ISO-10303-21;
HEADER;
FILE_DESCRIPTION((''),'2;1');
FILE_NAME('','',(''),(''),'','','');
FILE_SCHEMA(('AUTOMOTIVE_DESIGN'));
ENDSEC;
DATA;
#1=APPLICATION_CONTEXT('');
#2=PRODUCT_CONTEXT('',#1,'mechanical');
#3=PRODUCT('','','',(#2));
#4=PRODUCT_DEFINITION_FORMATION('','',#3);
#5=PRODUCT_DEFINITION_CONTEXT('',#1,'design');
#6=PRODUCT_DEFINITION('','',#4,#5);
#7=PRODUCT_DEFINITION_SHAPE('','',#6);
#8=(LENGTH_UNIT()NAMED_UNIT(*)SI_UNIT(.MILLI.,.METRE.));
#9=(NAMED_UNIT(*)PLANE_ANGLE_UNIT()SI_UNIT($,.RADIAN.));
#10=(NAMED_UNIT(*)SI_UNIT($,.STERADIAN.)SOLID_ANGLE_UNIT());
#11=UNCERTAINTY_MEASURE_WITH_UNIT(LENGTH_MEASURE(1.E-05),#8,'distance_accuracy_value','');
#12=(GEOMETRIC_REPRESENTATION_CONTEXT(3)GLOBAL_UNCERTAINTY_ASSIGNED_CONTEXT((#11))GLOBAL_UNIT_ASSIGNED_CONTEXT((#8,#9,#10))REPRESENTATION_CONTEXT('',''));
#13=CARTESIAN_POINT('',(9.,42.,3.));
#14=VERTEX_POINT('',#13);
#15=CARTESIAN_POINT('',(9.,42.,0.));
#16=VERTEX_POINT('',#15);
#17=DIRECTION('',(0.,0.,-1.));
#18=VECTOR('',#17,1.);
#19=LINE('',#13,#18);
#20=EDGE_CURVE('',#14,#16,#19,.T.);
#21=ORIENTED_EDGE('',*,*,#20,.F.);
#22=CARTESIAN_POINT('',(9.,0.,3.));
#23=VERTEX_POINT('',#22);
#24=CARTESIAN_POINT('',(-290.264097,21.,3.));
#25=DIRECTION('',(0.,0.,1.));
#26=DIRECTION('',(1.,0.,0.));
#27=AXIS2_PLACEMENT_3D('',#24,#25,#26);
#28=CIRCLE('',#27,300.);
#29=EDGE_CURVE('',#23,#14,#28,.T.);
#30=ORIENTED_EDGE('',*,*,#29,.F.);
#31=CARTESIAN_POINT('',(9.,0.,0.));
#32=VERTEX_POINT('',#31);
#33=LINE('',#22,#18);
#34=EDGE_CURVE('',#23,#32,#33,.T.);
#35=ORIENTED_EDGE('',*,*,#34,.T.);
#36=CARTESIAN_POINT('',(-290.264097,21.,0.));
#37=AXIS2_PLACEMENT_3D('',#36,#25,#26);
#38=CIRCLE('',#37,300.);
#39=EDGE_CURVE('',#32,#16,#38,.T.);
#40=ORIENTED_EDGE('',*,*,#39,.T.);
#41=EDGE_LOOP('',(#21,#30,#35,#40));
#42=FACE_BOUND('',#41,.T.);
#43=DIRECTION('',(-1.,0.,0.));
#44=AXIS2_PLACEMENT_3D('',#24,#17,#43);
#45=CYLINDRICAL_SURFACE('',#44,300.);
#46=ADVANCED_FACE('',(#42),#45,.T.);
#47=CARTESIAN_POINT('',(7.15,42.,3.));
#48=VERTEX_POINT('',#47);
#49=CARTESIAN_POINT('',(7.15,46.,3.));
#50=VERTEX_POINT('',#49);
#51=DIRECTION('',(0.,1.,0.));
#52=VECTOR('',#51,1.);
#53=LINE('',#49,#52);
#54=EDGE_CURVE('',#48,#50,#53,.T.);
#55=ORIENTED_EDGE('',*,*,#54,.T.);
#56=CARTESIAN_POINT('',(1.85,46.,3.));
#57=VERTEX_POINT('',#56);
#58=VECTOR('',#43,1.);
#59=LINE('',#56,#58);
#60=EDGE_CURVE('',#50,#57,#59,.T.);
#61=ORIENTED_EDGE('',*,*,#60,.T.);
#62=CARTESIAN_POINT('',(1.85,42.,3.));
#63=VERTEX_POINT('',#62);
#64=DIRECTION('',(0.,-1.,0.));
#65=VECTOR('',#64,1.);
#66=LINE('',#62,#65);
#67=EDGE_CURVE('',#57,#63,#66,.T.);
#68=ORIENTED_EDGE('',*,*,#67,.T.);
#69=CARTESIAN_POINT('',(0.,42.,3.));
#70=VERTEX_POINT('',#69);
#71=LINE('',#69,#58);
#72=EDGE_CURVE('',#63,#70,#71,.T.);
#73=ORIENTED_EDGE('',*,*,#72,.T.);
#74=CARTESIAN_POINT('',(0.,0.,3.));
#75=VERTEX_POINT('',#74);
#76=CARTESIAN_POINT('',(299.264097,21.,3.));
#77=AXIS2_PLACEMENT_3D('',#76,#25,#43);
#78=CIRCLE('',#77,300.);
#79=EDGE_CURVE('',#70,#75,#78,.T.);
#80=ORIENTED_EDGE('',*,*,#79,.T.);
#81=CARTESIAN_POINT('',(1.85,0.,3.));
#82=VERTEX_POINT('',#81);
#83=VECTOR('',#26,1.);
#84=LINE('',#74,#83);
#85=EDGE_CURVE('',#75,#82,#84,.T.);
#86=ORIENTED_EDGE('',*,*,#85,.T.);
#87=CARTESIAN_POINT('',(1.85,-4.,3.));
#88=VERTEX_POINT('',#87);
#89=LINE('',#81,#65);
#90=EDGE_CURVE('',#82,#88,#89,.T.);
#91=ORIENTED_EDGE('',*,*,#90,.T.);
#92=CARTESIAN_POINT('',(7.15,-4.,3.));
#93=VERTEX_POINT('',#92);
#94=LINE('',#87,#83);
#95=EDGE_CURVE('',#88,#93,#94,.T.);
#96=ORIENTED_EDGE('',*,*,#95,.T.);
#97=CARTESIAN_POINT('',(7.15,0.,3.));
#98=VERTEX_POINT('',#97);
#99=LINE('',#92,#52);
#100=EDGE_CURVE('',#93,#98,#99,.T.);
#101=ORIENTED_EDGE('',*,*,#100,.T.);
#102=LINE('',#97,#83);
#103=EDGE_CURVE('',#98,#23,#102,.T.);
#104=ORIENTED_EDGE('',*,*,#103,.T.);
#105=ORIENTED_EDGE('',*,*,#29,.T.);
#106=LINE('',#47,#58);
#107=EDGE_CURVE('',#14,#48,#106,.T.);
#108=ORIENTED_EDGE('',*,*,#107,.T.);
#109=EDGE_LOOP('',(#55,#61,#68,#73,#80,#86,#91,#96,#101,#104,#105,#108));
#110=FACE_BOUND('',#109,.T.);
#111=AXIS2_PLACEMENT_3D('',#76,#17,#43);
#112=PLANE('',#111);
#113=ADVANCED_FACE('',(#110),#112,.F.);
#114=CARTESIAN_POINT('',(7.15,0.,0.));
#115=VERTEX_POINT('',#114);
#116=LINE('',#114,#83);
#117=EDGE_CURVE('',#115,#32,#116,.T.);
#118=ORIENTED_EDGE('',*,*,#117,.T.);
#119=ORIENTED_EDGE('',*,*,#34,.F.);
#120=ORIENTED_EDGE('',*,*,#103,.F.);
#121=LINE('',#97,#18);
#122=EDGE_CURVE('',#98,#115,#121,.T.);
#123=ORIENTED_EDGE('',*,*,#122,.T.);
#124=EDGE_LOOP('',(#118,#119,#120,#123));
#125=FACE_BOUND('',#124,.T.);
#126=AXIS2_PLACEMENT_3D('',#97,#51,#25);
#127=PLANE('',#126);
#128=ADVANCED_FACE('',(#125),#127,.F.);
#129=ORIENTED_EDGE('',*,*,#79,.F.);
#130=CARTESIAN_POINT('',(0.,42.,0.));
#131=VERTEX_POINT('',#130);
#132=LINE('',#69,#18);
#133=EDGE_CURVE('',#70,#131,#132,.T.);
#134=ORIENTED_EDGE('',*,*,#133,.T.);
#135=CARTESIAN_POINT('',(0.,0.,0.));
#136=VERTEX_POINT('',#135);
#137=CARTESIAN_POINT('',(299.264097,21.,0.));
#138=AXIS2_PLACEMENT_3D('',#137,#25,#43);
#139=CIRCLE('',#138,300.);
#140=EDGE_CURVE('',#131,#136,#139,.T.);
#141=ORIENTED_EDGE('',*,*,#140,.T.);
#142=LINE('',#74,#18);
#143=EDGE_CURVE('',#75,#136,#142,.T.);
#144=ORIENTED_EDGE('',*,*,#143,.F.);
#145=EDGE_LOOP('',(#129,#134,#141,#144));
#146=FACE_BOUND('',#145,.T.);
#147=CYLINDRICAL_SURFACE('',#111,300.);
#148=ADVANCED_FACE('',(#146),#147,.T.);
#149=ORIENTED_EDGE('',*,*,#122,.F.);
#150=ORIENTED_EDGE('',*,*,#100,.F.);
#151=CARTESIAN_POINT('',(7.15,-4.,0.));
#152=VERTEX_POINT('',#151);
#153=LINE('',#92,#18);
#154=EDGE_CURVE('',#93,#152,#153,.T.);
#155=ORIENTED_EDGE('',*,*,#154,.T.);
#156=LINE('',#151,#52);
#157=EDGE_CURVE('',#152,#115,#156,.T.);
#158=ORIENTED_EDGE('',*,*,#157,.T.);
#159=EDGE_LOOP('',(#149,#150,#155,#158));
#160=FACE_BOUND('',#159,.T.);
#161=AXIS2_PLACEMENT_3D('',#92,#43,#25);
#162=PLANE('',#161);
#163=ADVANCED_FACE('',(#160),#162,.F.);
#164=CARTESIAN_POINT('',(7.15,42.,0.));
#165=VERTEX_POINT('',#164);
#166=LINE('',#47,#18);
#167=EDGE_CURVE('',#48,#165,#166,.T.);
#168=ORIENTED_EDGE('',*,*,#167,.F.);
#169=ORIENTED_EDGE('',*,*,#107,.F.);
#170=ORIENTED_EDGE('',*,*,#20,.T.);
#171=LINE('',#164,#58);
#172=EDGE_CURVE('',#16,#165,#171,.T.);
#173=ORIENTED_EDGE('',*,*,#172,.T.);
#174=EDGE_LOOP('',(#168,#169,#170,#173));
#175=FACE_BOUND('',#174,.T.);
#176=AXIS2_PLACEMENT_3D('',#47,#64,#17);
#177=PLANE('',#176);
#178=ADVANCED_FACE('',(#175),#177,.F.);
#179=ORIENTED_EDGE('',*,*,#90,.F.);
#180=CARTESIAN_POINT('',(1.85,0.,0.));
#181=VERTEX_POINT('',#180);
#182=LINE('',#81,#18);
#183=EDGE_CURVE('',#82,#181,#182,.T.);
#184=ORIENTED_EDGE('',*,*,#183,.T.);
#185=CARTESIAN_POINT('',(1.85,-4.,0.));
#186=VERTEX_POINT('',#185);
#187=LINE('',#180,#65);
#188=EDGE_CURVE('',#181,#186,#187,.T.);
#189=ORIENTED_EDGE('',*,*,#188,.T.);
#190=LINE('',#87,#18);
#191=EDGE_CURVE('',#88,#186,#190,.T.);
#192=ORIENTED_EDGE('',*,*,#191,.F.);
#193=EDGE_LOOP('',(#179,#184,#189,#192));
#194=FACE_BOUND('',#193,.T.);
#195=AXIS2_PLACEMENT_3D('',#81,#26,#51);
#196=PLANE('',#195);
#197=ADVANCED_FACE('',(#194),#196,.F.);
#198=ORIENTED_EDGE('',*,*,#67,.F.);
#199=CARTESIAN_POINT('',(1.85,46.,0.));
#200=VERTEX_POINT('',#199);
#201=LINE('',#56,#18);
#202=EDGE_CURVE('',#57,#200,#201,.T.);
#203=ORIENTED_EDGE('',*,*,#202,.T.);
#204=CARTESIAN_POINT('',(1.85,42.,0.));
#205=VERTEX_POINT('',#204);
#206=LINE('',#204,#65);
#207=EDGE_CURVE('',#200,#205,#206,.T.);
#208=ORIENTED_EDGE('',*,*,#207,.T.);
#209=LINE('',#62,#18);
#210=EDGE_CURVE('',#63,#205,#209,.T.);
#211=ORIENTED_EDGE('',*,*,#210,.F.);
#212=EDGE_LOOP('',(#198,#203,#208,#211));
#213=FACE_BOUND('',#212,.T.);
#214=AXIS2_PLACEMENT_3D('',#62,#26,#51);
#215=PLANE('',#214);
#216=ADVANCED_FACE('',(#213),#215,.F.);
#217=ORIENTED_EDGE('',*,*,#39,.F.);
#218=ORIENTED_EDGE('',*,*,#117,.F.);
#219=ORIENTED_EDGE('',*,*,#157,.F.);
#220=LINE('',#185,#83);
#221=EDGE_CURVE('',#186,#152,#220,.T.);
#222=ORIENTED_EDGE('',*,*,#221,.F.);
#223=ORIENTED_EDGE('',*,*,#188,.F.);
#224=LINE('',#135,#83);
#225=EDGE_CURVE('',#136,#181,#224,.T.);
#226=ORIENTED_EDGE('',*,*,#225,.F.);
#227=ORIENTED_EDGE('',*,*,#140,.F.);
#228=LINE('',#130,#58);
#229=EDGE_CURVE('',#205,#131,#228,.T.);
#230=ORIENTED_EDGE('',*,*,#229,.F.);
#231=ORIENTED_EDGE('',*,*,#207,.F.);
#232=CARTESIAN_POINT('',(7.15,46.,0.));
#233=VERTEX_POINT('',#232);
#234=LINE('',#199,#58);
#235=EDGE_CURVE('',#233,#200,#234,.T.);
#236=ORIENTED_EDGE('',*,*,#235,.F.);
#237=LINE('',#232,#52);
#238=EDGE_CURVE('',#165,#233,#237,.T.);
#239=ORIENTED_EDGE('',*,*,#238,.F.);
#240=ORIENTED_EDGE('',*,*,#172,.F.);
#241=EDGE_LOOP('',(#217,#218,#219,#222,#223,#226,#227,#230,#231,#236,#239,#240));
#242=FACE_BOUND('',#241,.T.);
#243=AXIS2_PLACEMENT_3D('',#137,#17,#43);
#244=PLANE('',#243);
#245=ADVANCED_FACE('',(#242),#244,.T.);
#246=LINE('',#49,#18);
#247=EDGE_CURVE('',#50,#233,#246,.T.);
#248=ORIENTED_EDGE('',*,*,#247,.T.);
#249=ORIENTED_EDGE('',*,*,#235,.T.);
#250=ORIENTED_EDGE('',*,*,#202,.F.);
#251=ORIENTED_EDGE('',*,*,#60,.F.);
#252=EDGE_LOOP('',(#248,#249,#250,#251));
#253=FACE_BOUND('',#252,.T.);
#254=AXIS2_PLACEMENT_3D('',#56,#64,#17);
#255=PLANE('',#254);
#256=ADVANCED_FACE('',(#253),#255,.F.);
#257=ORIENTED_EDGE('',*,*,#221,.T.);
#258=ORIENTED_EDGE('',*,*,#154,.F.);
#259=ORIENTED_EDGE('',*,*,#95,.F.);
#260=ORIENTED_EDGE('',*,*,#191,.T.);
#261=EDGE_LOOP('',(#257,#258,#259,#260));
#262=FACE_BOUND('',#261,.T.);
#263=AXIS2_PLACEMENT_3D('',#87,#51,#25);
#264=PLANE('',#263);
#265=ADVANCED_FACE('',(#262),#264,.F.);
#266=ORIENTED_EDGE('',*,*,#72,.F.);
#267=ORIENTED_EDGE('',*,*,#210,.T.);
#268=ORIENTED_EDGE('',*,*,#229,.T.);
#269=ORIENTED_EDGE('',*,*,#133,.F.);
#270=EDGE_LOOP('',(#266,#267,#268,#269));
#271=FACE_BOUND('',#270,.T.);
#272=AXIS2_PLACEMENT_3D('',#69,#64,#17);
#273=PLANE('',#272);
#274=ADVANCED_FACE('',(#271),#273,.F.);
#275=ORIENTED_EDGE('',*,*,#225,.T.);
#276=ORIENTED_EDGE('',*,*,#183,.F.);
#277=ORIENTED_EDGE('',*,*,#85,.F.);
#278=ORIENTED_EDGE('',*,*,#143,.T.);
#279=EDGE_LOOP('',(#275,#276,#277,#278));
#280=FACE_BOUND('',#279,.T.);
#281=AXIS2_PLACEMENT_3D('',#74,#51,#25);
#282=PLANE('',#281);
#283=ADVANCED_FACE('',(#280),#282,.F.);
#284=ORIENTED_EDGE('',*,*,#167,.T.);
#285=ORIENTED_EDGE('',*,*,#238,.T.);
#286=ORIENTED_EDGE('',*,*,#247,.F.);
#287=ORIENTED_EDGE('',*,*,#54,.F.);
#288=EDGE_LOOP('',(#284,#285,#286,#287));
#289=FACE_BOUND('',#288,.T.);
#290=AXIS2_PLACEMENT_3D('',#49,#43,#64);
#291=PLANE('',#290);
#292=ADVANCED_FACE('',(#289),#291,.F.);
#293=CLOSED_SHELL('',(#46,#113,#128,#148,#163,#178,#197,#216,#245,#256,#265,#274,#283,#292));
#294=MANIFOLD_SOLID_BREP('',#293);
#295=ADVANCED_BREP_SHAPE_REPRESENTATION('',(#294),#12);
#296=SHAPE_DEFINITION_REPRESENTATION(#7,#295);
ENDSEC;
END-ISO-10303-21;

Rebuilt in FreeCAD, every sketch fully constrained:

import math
import FreeCAD as App
import Part
import Sketcher

V = App.Vector

doc = App.newDocument("Part")
body = doc.addObject("PartDesign::Body", "Body")

# Sketch on XY plane
sketch1 = doc.addObject("Sketcher::SketchObject", "Sketch")
body.addObject(sketch1)
sketch1.AttachmentSupport = (doc.XY_Plane, [""])
sketch1.MapMode = "FlatFace"
sketch1.addGeometry([
    Part.LineSegment(V(0, 0, 0), V(1.85, 0, 0)),  # 0
    Part.LineSegment(V(1.85, 0, 0), V(1.85, -4, 0)),  # 1
    Part.LineSegment(V(1.85, -4, 0), V(7.15, -4, 0)),  # 2
    Part.LineSegment(V(7.15, -4, 0), V(7.15, 0, 0)),  # 3
    Part.LineSegment(V(7.15, 0, 0), V(9, 0, 0)),  # 4
    Part.ArcOfCircle(Part.Circle(V(-290.264097, 21, 0), V(0, 0, 1), 300), math.radians(-4.013987), math.radians(4.013987)),  # 5
    Part.LineSegment(V(9, 42, 0), V(7.15, 42, 0)),  # 6
    Part.LineSegment(V(7.15, 42, 0), V(7.15, 46, 0)),  # 7
    Part.LineSegment(V(7.15, 46, 0), V(1.85, 46, 0)),  # 8
    Part.LineSegment(V(1.85, 46, 0), V(1.85, 42, 0)),  # 9
    Part.LineSegment(V(1.85, 42, 0), V(0, 42, 0)),  # 10
    Part.ArcOfCircle(Part.Circle(V(299.264097, 21, 0), V(0, 0, 1), 300), math.radians(175.986013), math.radians(184.013987)),  # 11
], False)
sketch1.addConstraint([
    Sketcher.Constraint("Coincident", 0, 2, 1, 1),
    Sketcher.Constraint("Coincident", 1, 2, 2, 1),
    Sketcher.Constraint("Coincident", 2, 2, 3, 1),
    Sketcher.Constraint("Coincident", 3, 2, 4, 1),
    Sketcher.Constraint("Coincident", 4, 2, 5, 1),
    Sketcher.Constraint("Coincident", 5, 2, 6, 1),
    Sketcher.Constraint("Coincident", 6, 2, 7, 1),
    Sketcher.Constraint("Coincident", 7, 2, 8, 1),
    Sketcher.Constraint("Coincident", 8, 2, 9, 1),
    Sketcher.Constraint("Coincident", 9, 2, 10, 1),
    Sketcher.Constraint("Coincident", 10, 2, 11, 1),
    Sketcher.Constraint("Coincident", 11, 2, 0, 1),
    Sketcher.Constraint("Horizontal", 0),
    Sketcher.Constraint("Vertical", 1),
    Sketcher.Constraint("Horizontal", 2),
    Sketcher.Constraint("Vertical", 3),
    Sketcher.Constraint("Horizontal", 4),
    Sketcher.Constraint("Horizontal", 6),
    Sketcher.Constraint("Vertical", 7),
    Sketcher.Constraint("Horizontal", 8),
    Sketcher.Constraint("Vertical", 9),
    Sketcher.Constraint("Horizontal", 10),
    Sketcher.Constraint("Equal", 5, 11),
    Sketcher.Constraint("PointOnObject", 0, 2, -1),
    Sketcher.Constraint("PointOnObject", 3, 2, -1),
    Sketcher.Constraint("PointOnObject", 10, 2, -2),
    Sketcher.Constraint("Horizontal", 5, 3, 11, 3),
    Sketcher.Constraint("Horizontal", 6, 2, 9, 2),
    Sketcher.Constraint("Vertical", 4, 2, 5, 2),
    Sketcher.Constraint("Vertical", 3, 2, 6, 2),
    Sketcher.Constraint("Vertical", 1, 2, 8, 2),
    Sketcher.Constraint("Equal", 0, 4),
    Sketcher.Constraint("Equal", 3, 7),
    Sketcher.Constraint("Radius", 5, 300.0),
    Sketcher.Constraint("DistanceY", 1, 2, 1, 1, 4.0),
    Sketcher.Constraint("DistanceX", 2, 1, 2, 2, 5.3),
    Sketcher.Constraint("DistanceY", -1, 1, 5, 3, 21.0),
    Sketcher.Constraint("DistanceX", -1, 1, 4, 2, 9.0),
])
pad1 = doc.addObject("PartDesign::Pad", "Pad")
body.addObject(pad1)
pad1.Profile = sketch1
pad1.Length = 3

doc.recompute()
